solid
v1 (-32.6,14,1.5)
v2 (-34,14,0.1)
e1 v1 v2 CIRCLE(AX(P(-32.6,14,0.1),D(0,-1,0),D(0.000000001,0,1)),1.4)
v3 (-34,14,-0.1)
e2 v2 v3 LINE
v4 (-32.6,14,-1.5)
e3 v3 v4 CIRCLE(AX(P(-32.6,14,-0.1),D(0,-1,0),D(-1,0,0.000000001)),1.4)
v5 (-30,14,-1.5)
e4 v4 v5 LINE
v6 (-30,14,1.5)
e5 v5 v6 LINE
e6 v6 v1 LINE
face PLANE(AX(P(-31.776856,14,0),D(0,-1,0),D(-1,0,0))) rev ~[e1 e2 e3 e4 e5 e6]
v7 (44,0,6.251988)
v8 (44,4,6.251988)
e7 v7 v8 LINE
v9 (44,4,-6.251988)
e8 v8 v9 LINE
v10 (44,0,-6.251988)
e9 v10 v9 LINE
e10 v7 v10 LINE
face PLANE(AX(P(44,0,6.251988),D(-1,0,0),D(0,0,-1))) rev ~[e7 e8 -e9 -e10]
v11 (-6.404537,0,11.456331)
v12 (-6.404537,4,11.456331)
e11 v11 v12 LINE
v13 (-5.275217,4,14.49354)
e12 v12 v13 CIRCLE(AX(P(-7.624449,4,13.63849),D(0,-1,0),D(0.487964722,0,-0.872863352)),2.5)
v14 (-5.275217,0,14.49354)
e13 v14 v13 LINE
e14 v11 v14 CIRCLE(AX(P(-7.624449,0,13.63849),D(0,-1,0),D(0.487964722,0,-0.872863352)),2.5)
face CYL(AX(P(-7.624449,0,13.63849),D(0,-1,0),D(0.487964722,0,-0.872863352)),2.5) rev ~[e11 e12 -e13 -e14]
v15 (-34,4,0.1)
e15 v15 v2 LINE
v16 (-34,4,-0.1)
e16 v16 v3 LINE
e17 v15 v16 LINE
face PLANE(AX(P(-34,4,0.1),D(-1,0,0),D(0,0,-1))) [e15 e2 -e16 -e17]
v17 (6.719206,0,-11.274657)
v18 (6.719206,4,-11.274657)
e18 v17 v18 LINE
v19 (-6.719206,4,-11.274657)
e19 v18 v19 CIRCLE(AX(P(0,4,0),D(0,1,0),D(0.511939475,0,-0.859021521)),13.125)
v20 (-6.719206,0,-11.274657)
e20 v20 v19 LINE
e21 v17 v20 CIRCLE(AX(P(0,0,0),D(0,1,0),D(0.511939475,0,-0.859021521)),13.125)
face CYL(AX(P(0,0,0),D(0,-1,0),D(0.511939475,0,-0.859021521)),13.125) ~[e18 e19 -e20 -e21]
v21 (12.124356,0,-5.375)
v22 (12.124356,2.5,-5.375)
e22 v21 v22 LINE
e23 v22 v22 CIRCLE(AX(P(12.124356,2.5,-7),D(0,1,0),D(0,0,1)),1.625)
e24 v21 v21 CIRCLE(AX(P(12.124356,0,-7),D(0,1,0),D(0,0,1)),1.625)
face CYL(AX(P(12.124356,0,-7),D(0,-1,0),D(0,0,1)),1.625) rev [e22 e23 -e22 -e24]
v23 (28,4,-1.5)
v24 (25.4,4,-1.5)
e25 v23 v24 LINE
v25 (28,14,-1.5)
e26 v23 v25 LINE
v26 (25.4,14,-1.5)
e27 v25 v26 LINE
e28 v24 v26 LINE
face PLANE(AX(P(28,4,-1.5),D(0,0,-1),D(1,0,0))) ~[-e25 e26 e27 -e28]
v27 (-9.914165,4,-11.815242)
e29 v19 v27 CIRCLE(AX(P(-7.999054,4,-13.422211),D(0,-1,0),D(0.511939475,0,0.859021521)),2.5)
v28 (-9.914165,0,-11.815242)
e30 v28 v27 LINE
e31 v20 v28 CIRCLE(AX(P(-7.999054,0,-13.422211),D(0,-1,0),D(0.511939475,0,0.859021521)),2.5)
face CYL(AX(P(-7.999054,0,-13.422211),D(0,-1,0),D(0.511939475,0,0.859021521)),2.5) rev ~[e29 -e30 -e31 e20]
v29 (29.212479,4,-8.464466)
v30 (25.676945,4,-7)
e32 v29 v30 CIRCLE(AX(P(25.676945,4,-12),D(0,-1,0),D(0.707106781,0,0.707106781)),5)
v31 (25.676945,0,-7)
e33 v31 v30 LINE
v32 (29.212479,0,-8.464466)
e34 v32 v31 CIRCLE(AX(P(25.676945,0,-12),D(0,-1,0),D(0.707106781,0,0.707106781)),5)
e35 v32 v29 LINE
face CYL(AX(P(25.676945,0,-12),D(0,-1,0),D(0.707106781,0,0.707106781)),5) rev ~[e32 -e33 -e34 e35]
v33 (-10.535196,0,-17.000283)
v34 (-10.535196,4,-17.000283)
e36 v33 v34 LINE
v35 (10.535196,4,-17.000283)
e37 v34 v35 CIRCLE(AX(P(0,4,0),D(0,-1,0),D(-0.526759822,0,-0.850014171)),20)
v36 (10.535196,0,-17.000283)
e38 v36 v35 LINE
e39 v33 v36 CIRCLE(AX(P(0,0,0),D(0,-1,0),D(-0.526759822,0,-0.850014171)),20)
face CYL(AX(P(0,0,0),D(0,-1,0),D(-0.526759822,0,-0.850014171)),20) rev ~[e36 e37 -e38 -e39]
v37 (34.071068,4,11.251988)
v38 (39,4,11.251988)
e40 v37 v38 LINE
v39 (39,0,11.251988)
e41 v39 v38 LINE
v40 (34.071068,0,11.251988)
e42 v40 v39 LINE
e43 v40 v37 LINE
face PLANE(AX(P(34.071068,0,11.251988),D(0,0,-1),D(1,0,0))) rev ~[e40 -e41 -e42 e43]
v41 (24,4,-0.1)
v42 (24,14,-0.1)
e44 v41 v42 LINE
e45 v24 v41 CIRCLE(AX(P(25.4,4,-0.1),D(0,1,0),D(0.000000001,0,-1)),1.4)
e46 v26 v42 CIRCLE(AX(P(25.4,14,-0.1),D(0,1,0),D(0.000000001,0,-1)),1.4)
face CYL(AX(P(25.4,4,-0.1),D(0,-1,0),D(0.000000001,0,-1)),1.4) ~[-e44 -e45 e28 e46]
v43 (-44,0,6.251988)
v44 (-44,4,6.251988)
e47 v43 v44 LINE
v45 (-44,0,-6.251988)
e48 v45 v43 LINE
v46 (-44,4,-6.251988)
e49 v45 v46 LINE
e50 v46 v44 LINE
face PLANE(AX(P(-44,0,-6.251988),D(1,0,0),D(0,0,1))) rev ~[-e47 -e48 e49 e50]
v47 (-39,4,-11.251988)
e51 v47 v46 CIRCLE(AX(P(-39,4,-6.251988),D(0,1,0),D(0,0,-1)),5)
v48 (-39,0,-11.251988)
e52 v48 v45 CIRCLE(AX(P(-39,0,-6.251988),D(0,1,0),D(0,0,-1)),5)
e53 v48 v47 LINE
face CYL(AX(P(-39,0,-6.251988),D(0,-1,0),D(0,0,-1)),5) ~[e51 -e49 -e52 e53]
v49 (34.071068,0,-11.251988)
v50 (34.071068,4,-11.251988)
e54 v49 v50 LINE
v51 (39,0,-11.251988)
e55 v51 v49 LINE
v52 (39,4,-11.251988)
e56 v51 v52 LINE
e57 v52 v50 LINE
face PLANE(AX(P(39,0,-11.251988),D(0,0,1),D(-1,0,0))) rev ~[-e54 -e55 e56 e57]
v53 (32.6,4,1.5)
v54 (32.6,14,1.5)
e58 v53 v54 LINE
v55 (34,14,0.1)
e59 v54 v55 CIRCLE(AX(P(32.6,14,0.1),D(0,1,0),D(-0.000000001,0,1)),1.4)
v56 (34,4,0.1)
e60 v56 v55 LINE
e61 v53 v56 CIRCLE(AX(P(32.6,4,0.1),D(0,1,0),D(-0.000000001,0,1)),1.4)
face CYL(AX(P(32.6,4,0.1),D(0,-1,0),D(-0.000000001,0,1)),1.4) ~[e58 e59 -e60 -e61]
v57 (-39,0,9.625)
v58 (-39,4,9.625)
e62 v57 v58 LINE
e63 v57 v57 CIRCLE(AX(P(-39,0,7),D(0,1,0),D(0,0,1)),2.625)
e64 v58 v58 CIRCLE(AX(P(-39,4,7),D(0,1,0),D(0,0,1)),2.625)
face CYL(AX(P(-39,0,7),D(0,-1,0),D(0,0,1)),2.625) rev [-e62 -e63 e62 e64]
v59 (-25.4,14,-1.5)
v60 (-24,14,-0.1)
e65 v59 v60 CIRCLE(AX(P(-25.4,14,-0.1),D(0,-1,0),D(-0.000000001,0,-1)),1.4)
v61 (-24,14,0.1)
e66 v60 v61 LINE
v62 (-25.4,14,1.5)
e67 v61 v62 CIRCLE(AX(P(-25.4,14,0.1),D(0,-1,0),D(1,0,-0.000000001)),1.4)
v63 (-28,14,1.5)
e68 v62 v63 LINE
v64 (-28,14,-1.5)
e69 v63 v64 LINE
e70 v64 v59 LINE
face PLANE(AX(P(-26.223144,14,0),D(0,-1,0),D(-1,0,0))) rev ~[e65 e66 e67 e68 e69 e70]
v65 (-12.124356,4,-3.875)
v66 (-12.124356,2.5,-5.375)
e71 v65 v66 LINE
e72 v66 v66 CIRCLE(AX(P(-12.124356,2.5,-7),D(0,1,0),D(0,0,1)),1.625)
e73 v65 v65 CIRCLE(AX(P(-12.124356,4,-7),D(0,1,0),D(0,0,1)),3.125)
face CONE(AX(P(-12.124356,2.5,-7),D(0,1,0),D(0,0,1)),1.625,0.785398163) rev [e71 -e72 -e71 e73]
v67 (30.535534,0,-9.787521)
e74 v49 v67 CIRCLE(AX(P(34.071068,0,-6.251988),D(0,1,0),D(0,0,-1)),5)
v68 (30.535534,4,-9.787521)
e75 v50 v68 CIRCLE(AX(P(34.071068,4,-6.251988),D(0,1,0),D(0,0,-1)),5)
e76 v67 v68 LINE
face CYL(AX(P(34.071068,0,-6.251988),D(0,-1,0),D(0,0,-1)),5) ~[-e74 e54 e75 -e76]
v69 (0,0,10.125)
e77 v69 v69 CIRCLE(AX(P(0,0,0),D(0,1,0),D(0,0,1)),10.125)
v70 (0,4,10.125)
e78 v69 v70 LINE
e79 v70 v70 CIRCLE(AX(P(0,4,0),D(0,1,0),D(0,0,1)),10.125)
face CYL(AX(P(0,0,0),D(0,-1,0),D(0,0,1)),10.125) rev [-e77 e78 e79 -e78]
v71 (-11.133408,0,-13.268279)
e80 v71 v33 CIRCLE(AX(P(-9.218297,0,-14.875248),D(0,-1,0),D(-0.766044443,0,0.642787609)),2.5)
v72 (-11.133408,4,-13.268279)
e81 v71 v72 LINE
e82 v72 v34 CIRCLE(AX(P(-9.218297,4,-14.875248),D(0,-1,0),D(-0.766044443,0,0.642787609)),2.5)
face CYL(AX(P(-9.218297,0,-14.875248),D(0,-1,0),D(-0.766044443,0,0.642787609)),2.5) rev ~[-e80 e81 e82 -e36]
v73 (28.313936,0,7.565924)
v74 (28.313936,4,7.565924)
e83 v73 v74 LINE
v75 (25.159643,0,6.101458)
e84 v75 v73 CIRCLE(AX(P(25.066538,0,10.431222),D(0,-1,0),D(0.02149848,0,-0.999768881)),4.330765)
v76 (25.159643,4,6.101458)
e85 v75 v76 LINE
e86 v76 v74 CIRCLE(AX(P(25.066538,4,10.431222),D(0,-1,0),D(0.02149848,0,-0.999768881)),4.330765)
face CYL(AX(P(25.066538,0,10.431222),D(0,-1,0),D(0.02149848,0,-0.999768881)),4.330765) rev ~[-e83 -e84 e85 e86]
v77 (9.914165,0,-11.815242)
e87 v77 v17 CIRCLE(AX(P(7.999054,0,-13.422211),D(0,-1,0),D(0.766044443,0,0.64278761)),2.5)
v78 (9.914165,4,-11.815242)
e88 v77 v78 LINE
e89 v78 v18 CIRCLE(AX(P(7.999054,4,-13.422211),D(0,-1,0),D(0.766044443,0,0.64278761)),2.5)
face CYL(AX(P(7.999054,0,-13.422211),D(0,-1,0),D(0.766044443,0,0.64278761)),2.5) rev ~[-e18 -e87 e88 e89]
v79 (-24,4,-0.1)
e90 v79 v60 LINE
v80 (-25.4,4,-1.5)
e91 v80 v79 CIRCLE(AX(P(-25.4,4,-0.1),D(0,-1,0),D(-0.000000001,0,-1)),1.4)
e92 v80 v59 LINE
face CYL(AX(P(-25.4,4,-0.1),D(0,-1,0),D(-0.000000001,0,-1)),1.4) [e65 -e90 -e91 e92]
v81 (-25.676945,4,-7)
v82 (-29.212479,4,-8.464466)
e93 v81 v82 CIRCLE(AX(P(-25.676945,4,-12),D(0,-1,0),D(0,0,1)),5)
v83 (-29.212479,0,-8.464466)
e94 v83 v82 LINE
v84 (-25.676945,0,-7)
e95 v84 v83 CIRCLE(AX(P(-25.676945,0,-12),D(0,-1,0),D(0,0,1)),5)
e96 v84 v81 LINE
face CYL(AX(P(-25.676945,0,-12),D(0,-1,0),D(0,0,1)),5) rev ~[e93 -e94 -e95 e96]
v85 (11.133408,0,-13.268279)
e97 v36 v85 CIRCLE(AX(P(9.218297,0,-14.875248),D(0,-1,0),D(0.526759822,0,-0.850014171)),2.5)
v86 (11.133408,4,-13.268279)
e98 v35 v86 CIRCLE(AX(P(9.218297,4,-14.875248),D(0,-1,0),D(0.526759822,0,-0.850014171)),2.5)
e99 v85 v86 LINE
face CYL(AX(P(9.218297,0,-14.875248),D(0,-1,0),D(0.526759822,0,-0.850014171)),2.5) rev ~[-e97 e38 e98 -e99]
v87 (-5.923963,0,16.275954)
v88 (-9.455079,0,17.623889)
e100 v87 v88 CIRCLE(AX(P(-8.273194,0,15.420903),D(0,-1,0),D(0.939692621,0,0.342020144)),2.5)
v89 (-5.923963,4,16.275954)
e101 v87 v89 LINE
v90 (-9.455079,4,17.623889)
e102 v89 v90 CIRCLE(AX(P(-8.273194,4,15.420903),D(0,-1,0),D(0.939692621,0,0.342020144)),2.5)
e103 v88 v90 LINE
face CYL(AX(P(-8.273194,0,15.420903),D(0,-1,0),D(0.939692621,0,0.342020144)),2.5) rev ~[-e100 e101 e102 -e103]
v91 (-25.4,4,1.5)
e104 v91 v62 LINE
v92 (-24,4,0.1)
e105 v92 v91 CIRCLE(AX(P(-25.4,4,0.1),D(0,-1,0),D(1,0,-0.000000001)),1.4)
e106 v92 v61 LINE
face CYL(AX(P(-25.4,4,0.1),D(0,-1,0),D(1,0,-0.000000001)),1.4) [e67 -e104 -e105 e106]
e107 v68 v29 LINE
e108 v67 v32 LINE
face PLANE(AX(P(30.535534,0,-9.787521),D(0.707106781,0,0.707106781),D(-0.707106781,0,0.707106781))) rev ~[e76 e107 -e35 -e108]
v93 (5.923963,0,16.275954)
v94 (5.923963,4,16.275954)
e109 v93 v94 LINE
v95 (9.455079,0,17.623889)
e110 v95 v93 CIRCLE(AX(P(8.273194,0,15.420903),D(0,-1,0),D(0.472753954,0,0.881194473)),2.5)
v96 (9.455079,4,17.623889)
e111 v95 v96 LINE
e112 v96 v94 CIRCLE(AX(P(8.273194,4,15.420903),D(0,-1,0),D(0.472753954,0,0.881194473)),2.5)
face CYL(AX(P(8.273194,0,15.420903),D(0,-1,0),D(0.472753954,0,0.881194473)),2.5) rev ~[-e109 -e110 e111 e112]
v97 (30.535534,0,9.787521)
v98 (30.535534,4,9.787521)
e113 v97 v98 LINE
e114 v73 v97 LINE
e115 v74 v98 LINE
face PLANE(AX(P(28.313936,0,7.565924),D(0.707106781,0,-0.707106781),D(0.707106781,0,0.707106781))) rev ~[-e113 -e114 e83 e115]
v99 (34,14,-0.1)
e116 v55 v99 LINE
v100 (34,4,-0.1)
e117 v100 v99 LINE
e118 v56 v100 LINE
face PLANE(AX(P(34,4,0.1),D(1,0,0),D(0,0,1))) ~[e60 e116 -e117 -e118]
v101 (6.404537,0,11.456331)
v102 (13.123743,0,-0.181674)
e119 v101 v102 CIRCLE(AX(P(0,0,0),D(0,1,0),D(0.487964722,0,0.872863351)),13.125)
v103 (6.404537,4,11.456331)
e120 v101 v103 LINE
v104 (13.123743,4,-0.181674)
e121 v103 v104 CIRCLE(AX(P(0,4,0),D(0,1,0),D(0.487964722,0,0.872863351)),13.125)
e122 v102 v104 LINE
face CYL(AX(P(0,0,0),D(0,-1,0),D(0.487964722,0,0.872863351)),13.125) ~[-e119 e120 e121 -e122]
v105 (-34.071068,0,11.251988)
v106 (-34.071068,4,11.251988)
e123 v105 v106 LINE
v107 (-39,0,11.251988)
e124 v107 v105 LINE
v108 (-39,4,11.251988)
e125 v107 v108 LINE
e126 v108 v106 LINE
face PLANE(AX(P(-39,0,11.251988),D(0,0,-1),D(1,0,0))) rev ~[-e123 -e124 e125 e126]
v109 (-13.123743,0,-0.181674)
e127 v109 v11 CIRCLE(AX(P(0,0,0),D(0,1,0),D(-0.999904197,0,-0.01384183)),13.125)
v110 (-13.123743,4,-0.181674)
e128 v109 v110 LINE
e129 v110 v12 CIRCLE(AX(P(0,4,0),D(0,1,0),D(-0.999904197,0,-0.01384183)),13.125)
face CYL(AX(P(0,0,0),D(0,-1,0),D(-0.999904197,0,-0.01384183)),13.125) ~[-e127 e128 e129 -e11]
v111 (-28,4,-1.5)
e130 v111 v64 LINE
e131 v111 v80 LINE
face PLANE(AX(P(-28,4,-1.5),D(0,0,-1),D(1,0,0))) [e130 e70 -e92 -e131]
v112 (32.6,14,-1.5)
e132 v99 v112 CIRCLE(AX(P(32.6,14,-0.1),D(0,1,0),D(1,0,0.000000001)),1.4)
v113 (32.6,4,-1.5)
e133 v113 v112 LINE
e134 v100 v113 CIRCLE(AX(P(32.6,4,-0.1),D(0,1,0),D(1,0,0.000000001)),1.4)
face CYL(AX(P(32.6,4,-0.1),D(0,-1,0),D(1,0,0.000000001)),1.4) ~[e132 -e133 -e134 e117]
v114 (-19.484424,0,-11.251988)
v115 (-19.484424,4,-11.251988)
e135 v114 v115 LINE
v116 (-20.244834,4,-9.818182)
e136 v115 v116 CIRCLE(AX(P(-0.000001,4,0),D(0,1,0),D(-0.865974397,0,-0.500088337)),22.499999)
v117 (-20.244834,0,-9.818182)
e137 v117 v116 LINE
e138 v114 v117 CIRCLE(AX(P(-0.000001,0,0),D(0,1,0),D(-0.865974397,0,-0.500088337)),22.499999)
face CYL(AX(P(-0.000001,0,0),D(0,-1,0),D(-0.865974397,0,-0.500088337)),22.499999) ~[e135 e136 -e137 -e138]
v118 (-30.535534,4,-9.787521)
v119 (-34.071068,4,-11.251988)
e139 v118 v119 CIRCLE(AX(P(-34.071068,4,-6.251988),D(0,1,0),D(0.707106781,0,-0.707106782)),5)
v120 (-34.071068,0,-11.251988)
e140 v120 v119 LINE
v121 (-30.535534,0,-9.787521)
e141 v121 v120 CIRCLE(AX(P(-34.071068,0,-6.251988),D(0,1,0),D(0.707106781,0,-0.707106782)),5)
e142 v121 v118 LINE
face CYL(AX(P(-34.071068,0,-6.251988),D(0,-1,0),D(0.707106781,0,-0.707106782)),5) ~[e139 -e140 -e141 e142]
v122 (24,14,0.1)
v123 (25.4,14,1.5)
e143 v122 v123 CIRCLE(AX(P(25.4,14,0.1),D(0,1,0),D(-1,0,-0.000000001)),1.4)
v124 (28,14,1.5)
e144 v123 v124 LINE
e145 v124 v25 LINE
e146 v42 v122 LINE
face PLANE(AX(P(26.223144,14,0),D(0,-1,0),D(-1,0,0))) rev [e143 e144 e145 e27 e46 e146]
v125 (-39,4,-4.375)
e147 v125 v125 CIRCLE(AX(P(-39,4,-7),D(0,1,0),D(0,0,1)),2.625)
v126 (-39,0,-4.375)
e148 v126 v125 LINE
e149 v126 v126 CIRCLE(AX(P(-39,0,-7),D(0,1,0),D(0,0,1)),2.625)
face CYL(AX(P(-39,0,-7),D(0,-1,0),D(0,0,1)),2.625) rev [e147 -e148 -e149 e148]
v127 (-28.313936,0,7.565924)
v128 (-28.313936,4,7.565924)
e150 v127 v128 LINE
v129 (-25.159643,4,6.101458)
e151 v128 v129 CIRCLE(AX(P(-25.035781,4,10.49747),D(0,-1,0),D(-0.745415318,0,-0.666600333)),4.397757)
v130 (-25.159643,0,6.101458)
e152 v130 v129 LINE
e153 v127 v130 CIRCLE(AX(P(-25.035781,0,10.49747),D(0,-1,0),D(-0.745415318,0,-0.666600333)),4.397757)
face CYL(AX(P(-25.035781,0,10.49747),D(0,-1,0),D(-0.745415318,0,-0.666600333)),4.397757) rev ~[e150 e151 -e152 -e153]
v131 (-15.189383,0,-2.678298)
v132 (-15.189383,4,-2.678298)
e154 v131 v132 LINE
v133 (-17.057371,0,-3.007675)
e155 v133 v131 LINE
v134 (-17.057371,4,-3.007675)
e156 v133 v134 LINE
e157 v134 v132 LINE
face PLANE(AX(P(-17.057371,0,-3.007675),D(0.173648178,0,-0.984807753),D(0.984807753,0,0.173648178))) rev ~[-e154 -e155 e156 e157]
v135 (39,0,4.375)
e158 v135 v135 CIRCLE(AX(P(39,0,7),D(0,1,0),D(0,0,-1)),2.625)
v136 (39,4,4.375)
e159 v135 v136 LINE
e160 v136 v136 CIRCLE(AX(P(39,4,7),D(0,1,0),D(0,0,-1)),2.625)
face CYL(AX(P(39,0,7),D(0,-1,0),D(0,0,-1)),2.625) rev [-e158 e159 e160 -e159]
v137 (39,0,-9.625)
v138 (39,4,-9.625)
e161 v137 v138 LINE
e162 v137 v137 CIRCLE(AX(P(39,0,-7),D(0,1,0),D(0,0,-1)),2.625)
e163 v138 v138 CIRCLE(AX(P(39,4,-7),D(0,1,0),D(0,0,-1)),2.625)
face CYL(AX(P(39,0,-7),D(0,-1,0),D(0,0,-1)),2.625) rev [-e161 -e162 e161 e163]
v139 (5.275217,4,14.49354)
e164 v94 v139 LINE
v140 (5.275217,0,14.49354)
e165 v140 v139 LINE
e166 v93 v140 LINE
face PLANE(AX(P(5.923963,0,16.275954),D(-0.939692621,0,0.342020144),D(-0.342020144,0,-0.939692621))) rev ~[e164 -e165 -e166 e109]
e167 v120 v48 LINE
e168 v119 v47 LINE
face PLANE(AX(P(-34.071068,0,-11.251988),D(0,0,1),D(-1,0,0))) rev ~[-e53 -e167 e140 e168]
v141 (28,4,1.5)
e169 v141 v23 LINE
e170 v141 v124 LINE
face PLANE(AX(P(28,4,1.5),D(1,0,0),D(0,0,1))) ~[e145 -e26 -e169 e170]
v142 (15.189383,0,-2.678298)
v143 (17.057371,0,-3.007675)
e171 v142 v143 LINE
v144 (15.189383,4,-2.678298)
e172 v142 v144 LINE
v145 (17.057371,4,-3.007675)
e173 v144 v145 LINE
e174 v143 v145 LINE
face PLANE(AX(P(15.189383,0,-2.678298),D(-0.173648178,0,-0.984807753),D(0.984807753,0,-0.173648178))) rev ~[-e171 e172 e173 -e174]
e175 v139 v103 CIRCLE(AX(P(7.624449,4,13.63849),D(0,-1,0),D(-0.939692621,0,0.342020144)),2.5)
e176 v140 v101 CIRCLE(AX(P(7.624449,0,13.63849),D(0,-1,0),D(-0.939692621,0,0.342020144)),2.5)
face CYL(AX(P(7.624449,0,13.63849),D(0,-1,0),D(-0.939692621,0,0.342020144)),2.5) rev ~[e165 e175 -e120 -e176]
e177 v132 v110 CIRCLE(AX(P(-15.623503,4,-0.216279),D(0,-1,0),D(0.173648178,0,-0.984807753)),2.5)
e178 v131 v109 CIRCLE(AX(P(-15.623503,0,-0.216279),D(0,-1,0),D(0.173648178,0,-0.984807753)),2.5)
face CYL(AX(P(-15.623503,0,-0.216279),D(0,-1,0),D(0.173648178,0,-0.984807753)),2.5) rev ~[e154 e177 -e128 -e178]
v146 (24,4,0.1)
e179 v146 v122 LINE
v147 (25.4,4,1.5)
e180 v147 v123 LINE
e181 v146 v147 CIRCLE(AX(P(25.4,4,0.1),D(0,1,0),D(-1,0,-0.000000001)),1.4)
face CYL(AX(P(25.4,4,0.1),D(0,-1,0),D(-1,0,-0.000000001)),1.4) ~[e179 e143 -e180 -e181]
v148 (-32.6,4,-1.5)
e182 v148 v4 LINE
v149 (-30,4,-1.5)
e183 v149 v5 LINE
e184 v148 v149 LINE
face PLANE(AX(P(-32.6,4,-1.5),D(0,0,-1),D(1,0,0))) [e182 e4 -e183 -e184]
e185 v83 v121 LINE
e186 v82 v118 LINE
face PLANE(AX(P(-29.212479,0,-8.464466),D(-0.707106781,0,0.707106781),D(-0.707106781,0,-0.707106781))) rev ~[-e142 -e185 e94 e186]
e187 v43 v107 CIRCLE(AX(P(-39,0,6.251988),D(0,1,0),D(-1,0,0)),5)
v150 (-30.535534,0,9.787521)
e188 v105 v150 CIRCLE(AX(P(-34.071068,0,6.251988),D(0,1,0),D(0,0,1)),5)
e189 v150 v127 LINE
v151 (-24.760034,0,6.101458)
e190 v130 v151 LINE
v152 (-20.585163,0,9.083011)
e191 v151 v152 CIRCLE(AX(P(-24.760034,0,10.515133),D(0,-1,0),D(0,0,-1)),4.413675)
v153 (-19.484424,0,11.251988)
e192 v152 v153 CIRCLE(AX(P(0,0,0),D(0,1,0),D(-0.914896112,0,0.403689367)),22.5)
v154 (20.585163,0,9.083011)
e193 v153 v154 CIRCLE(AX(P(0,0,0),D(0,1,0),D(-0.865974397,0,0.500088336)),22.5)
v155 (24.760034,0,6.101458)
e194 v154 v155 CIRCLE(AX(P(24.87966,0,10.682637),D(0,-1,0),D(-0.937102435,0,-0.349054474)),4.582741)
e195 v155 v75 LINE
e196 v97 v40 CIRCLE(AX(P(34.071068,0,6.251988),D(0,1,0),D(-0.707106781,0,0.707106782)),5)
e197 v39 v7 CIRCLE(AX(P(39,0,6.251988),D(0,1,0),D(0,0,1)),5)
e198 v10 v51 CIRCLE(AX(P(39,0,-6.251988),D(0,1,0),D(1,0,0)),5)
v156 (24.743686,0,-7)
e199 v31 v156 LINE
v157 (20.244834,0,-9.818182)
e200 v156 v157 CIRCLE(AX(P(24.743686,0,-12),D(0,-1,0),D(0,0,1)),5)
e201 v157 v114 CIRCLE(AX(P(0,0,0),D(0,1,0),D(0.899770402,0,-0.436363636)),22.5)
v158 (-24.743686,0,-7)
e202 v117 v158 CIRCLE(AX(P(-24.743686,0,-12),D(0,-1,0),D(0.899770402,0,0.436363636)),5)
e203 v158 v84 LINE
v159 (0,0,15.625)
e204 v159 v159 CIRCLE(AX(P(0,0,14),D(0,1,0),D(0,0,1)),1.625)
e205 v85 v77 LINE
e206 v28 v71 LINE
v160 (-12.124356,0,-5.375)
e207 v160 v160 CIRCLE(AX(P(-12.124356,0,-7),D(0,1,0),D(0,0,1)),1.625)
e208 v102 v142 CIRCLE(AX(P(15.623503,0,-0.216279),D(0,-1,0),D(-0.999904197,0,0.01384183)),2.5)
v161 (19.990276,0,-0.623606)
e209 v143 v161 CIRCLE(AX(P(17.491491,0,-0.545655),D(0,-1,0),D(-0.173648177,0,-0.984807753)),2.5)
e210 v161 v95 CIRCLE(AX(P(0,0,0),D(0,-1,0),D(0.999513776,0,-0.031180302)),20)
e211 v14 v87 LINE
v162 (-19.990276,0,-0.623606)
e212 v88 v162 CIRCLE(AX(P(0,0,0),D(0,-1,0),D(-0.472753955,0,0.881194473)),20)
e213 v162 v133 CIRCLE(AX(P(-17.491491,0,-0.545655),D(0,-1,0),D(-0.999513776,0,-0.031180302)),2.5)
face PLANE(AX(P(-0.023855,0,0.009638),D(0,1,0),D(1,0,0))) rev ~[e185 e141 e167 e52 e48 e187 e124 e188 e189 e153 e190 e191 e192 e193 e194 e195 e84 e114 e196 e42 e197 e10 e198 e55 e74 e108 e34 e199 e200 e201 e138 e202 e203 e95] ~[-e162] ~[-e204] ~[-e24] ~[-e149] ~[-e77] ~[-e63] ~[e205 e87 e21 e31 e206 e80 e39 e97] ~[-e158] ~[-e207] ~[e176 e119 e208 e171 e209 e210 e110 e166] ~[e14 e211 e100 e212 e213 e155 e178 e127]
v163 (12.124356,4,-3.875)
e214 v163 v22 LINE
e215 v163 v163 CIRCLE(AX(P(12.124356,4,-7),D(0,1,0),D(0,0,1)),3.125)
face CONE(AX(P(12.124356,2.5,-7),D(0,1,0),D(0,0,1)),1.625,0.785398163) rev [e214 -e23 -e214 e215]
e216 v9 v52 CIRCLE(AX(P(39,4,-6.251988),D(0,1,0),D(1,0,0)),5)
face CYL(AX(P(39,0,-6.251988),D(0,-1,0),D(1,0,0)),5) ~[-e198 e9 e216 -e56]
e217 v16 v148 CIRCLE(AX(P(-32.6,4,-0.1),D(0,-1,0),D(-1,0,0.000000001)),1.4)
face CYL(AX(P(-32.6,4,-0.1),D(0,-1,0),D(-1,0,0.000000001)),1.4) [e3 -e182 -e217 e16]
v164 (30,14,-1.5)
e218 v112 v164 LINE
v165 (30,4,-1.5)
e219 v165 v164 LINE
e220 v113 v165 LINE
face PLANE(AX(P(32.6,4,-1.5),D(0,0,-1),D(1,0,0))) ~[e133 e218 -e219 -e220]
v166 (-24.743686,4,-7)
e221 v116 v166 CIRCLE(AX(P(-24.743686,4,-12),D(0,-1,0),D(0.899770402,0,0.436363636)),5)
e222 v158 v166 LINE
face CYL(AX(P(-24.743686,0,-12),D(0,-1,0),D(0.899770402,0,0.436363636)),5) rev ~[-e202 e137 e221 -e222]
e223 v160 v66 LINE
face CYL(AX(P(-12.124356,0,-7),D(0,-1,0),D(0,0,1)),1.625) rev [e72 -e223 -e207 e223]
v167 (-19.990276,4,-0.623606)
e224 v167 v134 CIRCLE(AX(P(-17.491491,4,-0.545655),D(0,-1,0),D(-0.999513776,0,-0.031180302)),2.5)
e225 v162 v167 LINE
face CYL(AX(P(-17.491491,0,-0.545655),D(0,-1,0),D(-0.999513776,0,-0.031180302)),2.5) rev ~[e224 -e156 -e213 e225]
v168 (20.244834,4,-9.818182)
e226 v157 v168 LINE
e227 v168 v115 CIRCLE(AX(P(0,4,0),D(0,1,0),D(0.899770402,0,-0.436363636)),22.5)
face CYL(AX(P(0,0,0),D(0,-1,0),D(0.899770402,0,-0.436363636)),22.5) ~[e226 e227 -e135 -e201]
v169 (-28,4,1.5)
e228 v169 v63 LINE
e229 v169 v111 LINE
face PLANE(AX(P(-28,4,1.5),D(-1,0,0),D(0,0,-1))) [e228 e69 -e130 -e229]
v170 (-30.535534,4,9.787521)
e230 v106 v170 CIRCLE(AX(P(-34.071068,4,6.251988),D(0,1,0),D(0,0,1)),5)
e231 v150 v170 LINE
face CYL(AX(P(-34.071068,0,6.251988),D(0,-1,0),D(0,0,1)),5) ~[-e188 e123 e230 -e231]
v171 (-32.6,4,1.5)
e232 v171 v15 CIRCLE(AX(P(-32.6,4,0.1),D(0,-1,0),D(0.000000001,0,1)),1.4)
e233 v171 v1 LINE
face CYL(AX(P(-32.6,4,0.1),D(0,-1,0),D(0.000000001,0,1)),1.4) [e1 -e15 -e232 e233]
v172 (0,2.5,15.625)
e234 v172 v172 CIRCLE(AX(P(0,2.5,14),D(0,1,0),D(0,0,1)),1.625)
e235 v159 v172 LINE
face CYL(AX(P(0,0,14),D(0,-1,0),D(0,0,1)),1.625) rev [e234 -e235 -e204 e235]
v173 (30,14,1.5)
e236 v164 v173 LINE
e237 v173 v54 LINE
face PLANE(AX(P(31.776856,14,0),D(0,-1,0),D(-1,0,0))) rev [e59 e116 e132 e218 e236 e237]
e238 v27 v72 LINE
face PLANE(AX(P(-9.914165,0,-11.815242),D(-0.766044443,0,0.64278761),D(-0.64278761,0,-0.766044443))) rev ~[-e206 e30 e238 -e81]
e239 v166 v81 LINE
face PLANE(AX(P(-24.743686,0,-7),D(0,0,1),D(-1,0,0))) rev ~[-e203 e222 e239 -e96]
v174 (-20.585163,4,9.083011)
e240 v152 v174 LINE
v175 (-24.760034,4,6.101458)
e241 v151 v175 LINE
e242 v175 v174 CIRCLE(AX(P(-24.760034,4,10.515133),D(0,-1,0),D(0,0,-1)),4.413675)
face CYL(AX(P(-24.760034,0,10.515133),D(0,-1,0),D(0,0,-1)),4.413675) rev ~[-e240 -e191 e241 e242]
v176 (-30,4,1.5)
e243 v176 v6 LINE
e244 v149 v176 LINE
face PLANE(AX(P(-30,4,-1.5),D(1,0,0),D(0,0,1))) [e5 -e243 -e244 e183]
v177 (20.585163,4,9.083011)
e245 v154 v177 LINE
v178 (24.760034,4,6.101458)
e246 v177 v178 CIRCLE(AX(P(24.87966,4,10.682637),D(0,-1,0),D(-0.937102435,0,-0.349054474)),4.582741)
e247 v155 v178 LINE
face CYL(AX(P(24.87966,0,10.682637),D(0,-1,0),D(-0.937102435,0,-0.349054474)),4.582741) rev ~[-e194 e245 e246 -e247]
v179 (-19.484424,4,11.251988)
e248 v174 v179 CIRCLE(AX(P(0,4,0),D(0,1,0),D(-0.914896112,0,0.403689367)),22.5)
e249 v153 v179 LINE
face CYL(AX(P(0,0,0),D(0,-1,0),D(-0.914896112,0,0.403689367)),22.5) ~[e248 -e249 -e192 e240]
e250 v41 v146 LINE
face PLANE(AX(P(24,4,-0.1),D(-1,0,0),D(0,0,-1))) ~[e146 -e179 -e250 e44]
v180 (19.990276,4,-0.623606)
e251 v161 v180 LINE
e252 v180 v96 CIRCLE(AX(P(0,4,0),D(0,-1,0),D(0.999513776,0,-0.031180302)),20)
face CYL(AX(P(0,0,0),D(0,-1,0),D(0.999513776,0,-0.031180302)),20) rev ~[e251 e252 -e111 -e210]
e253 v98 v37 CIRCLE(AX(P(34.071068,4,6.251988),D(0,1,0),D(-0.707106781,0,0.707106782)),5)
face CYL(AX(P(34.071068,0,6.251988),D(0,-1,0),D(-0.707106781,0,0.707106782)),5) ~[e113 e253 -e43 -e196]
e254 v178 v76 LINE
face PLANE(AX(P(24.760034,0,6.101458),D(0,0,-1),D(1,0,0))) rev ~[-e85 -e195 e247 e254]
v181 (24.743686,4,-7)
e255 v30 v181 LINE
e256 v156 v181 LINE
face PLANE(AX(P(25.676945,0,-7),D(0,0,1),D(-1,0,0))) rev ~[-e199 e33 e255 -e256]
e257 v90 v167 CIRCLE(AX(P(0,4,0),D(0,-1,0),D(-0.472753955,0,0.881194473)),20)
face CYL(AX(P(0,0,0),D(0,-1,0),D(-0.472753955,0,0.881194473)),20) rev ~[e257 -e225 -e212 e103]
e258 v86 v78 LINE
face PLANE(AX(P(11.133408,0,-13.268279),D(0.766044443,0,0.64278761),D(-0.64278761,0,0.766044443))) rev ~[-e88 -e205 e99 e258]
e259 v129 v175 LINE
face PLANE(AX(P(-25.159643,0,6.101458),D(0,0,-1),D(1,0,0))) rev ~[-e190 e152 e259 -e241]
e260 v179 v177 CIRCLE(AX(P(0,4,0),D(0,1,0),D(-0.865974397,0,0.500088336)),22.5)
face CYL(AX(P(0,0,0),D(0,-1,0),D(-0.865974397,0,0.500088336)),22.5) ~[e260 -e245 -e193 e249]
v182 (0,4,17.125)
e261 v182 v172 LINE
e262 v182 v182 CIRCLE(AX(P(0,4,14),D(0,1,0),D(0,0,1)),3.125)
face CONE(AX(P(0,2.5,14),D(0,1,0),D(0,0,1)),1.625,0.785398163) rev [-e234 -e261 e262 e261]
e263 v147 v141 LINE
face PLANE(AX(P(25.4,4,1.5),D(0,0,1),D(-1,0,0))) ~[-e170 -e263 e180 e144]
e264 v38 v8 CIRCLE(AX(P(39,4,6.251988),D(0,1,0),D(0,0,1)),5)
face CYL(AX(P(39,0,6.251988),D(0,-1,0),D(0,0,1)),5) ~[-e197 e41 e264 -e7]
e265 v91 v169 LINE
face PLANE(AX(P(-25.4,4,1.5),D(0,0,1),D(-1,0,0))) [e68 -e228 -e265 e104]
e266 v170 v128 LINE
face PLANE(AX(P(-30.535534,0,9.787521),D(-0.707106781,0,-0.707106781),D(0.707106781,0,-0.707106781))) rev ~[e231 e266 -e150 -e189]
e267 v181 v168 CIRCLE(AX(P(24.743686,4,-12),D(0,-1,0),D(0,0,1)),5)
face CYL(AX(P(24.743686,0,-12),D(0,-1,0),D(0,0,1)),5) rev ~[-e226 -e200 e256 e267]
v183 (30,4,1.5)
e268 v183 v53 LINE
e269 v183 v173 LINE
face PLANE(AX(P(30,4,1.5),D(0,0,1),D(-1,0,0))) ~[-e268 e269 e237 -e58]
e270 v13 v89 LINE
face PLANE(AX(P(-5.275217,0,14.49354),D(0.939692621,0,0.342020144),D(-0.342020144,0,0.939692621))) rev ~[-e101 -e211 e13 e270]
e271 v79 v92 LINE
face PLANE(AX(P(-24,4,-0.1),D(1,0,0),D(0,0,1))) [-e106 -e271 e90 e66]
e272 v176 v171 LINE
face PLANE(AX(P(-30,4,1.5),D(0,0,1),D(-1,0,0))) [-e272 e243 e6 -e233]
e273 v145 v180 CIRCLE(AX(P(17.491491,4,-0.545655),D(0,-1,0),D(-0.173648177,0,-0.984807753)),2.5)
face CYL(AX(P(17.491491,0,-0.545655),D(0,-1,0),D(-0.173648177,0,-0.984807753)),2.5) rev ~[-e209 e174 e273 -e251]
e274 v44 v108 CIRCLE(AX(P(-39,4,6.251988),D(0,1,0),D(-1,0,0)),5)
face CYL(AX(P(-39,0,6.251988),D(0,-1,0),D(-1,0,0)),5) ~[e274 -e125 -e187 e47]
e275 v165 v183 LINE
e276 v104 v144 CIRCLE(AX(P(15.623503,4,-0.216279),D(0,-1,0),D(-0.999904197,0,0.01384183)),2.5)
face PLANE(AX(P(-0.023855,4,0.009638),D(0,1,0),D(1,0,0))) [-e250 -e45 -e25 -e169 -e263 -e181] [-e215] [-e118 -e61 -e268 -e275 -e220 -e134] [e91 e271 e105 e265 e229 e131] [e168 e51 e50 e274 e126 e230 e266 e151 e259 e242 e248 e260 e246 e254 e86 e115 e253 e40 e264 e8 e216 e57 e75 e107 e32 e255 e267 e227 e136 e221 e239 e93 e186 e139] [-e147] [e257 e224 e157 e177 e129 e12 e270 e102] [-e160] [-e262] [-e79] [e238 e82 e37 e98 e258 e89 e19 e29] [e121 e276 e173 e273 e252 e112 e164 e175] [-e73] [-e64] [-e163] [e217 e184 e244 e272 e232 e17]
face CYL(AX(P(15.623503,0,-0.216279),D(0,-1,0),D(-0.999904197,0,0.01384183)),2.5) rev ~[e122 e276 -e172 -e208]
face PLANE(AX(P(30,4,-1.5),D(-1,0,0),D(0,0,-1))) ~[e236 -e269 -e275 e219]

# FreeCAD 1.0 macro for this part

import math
import FreeCAD as App
import Part
import Sketcher
from FreeCAD import Vector
Q = App.Units.Quantity


def edges_at(feature, points):
    """Names of the edges that pass closest to the given points."""
    edges = feature.Shape.Edges
    near = lambda p: min(range(len(edges)), key=lambda i: edges[i].distToShape(Part.Vertex(*p))[0])
    return sorted({f"Edge{near(p) + 1}" for p in points})

doc = App.newDocument("Part")
params = doc.addObject("Spreadsheet::Sheet", "Params")
for row, (alias, value) in enumerate([
    ("sketch1_radius", "5 mm"),
    ("sketch1_radius2", "20 mm"),
    ("sketch1_radius3", "22.5 mm"),
    ("sketch1_radius4", "2.5 mm"),
    ("sketch1_diameter", "5.25 mm"),
    ("pad1_length", "4 mm"),
    ("sketch2_radius", "1.4 mm"),
    ("sketch2_height", "3 mm"),
    ("sketch2_width", "2.6 mm"),
    ("pad2_length", "10 mm"),
    ("chamfer_size", "1.5 mm"),
], start=1):
    params.set(f"A{row}", alias)
    params.set(f"B{row}", "=" + value)
    params.setAlias(f"B{row}", alias)

body = doc.addObject("PartDesign::Body", "Body")

sketch1 = body.newObject("Sketcher::SketchObject", "Sketch")
sketch1.AttachmentSupport = (doc.getObject("XZ_Plane"), [""])
sketch1.MapMode = "FlatFace"
sketch1.addGeometry([
    Part.LineSegment(Vector(-34.07, -11.25, 0), Vector(-39, -11.25, 0)),
    Part.ArcOfCircle(Part.Circle(Vector(-39, -6.25, 0), Vector(0, 0, 1), 5), math.radians(180), math.radians(270)),
    Part.LineSegment(Vector(-44, -6.25, 0), Vector(-44, 6.25, 0)),
    Part.ArcOfCircle(Part.Circle(Vector(-39, 6.25, 0), Vector(0, 0, 1), 5), math.radians(90), math.radians(180)),
    Part.LineSegment(Vector(-39, 11.25, 0), Vector(-34.07, 11.25, 0)),
    Part.ArcOfCircle(Part.Circle(Vector(-34.07, 6.25, 0), Vector(0, 0, 1), 5), math.radians(45), math.radians(90)),
    Part.LineSegment(Vector(-30.54, 9.79, 0), Vector(-28.31, 7.57, 0)),
    Part.ArcOfCircle(Part.Circle(Vector(-25.04, 10.5, 0), Vector(0, 0, 1), 4.4), math.radians(-138), math.radians(-92)),
    Part.LineSegment(Vector(-25.16, 6.1, 0), Vector(-24.76, 6.1, 0)),
    Part.ArcOfCircle(Part.Circle(Vector(-24.76, 10.52, 0), Vector(0, 0, 1), 4.41), math.radians(-90), math.radians(-19)),
    Part.ArcOfCircle(Part.Circle(Vector(0, 0, 0), Vector(0, 0, 1), 22.5), math.radians(149.99), math.radians(156.19)),
    Part.ArcOfCircle(Part.Circle(Vector(0, 0, 0), Vector(0, 0, 1), 22.5), math.radians(24), math.radians(150)),
    Part.ArcOfCircle(Part.Circle(Vector(24.88, 10.68, 0), Vector(0, 0, 1), 4.58), math.radians(-160), math.radians(-91)),
    Part.LineSegment(Vector(24.76, 6.1, 0), Vector(25.16, 6.1, 0)),
    Part.ArcOfCircle(Part.Circle(Vector(25.07, 10.43, 0), Vector(0, 0, 1), 4.33), math.radians(-89), math.radians(-41)),
    Part.LineSegment(Vector(28.31, 7.57, 0), Vector(30.54, 9.79, 0)),
    Part.ArcOfCircle(Part.Circle(Vector(34.07, 6.25, 0), Vector(0, 0, 1), 5), math.radians(90), math.radians(135)),
    Part.LineSegment(Vector(34.07, 11.25, 0), Vector(39, 11.25, 0)),
    Part.ArcOfCircle(Part.Circle(Vector(39, 6.25, 0), Vector(0, 0, 1), 5), math.radians(0), math.radians(90)),
    Part.LineSegment(Vector(44, 6.25, 0), Vector(44, -6.25, 0)),
    Part.ArcOfCircle(Part.Circle(Vector(39, -6.25, 0), Vector(0, 0, 1), 5), math.radians(-90), math.radians(0)),
    Part.LineSegment(Vector(39, -11.25, 0), Vector(34.07, -11.25, 0)),
    Part.ArcOfCircle(Part.Circle(Vector(34.07, -6.25, 0), Vector(0, 0, 1), 5), math.radians(-135), math.radians(-90)),
    Part.LineSegment(Vector(30.54, -9.79, 0), Vector(29.21, -8.46, 0)),
    Part.ArcOfCircle(Part.Circle(Vector(25.68, -12, 0), Vector(0, 0, 1), 5), math.radians(45), math.radians(90)),
    Part.LineSegment(Vector(25.68, -7, 0), Vector(24.74, -7, 0)),
    Part.ArcOfCircle(Part.Circle(Vector(24.74, -12, 0), Vector(0, 0, 1), 5), math.radians(90), math.radians(154)),
    Part.ArcOfCircle(Part.Circle(Vector(0, 0, 0), Vector(0, 0, 1), 22.5), math.radians(-150), math.radians(-26)),
    Part.ArcOfCircle(Part.Circle(Vector(0, 0, 0), Vector(0, 0, 1), 22.5), math.radians(-154.13), math.radians(-149.99)),
    Part.ArcOfCircle(Part.Circle(Vector(-24.74, -12, 0), Vector(0, 0, 1), 5), math.radians(26), math.radians(90)),
    Part.LineSegment(Vector(-24.74, -7, 0), Vector(-25.68, -7, 0)),
    Part.ArcOfCircle(Part.Circle(Vector(-25.68, -12, 0), Vector(0, 0, 1), 5), math.radians(90), math.radians(135)),
    Part.LineSegment(Vector(-29.21, -8.46, 0), Vector(-30.54, -9.79, 0)),
    Part.ArcOfCircle(Part.Circle(Vector(-34.07, -6.25, 0), Vector(0, 0, 1), 5), math.radians(-90), math.radians(-45)),
    Part.Circle(Vector(-39, 7, 0), Vector(0, 0, 1), 2.62),
    Part.ArcOfCircle(Part.Circle(Vector(-7.62, 13.64, 0), Vector(0, 0, 1), 2.5), math.radians(-61), math.radians(20)),
    Part.LineSegment(Vector(-5.28, 14.49, 0), Vector(-5.92, 16.28, 0)),
    Part.ArcOfCircle(Part.Circle(Vector(-8.27, 15.42, 0), Vector(0, 0, 1), 2.5), math.radians(20), math.radians(118)),
    Part.ArcOfCircle(Part.Circle(Vector(0, 0, 0), Vector(0, 0, 1), 20), math.radians(118), math.radians(182)),
    Part.ArcOfCircle(Part.Circle(Vector(-17.49, -0.55, 0), Vector(0, 0, 1), 2.5), math.radians(-178), math.radians(-80)),
    Part.LineSegment(Vector(-17.06, -3.01, 0), Vector(-15.19, -2.68, 0)),
    Part.ArcOfCircle(Part.Circle(Vector(-15.62, -0.22, 0), Vector(0, 0, 1), 2.5), math.radians(-80), math.radians(1)),
    Part.ArcOfCircle(Part.Circle(Vector(0, 0, 0), Vector(0, 0, 1), 13.12), math.radians(119), math.radians(181)),
    Part.Circle(Vector(0, 14, 0), Vector(0, 0, 1), 1.62),
    Part.ArcOfCircle(Part.Circle(Vector(15.62, -0.22, 0), Vector(0, 0, 1), 2.5), math.radians(179), math.radians(260)),
    Part.LineSegment(Vector(15.19, -2.68, 0), Vector(17.06, -3.01, 0)),
    Part.ArcOfCircle(Part.Circle(Vector(17.49, -0.55, 0), Vector(0, 0, 1), 2.5), math.radians(-100), math.radians(-2)),
    Part.ArcOfCircle(Part.Circle(Vector(0, 0, 0), Vector(0, 0, 1), 20), math.radians(-2), math.radians(62)),
    Part.ArcOfCircle(Part.Circle(Vector(8.27, 15.42, 0), Vector(0, 0, 1), 2.5), math.radians(62), math.radians(160)),
    Part.LineSegment(Vector(5.92, 16.28, 0), Vector(5.28, 14.49, 0)),
    Part.ArcOfCircle(Part.Circle(Vector(7.62, 13.64, 0), Vector(0, 0, 1), 2.5), math.radians(160), math.radians(241)),
    Part.ArcOfCircle(Part.Circle(Vector(0, 0, 0), Vector(0, 0, 1), 13.12), math.radians(-1), math.radians(61)),
    Part.Circle(Vector(0, 0, 0), Vector(0, 0, 1), 10.12),
    Part.Circle(Vector(39, 7, 0), Vector(0, 0, 1), 2.62),
    Part.Circle(Vector(-39, -7, 0), Vector(0, 0, 1), 2.62),
    Part.Circle(Vector(-12.12, -7, 0), Vector(0, 0, 1), 1.62),
    Part.Circle(Vector(12.12, -7, 0), Vector(0, 0, 1), 1.62),
    Part.Circle(Vector(39, -7, 0), Vector(0, 0, 1), 2.62),
    Part.ArcOfCircle(Part.Circle(Vector(-8, -13.42, 0), Vector(0, 0, 1), 2.5), math.radians(59), math.radians(140)),
    Part.LineSegment(Vector(-9.91, -11.82, 0), Vector(-11.13, -13.27, 0)),
    Part.ArcOfCircle(Part.Circle(Vector(-9.22, -14.88, 0), Vector(0, 0, 1), 2.5), math.radians(140), math.radians(238)),
    Part.ArcOfCircle(Part.Circle(Vector(0, 0, 0), Vector(0, 0, 1), 20), math.radians(-122), math.radians(-58)),
    Part.ArcOfCircle(Part.Circle(Vector(9.22, -14.88, 0), Vector(0, 0, 1), 2.5), math.radians(-58), math.radians(40)),
    Part.LineSegment(Vector(11.13, -13.27, 0), Vector(9.91, -11.82, 0)),
    Part.ArcOfCircle(Part.Circle(Vector(8, -13.42, 0), Vector(0, 0, 1), 2.5), math.radians(40), math.radians(121)),
    Part.ArcOfCircle(Part.Circle(Vector(0, 0, 0), Vector(0, 0, 1), 13.12), math.radians(-121), math.radians(-59)),
], False)
sketch1.addConstraint([
    Sketcher.Constraint("Tangent", 0, 2, 1, 2),
    Sketcher.Constraint("Tangent", 1, 1, 2, 1),
    Sketcher.Constraint("Tangent", 2, 2, 3, 2),
    Sketcher.Constraint("Tangent", 3, 1, 4, 1),
    Sketcher.Constraint("Tangent", 4, 2, 5, 2),
    Sketcher.Constraint("Tangent", 5, 1, 6, 1),
    Sketcher.Constraint("Coincident", 6, 2, 7, 1),
    Sketcher.Constraint("Coincident", 7, 2, 8, 1),
    Sketcher.Constraint("Tangent", 8, 2, 9, 1),
    Sketcher.Constraint("Coincident", 9, 2, 10, 2),
    Sketcher.Constraint("Tangent", 10, 1, 11, 2),
    Sketcher.Constraint("Coincident", 11, 1, 12, 1),
    Sketcher.Constraint("Coincident", 12, 2, 13, 1),
    Sketcher.Constraint("Coincident", 13, 2, 14, 1),
    Sketcher.Constraint("Coincident", 14, 2, 15, 1),
    Sketcher.Constraint("Tangent", 15, 2, 16, 2),
    Sketcher.Constraint("Tangent", 16, 1, 17, 1),
    Sketcher.Constraint("Tangent", 17, 2, 18, 2),
    Sketcher.Constraint("Tangent", 18, 1, 19, 1),
    Sketcher.Constraint("Tangent", 19, 2, 20, 2),
    Sketcher.Constraint("Tangent", 20, 1, 21, 1),
    Sketcher.Constraint("Tangent", 21, 2, 22, 2),
    Sketcher.Constraint("Tangent", 22, 1, 23, 1),
    Sketcher.Constraint("Tangent", 23, 2, 24, 1),
    Sketcher.Constraint("Tangent", 24, 2, 25, 1),
    Sketcher.Constraint("Tangent", 25, 2, 26, 1),
    Sketcher.Constraint("Tangent", 26, 2, 27, 2),
    Sketcher.Constraint("Tangent", 27, 1, 28, 2),
    Sketcher.Constraint("Tangent", 28, 1, 29, 1),
    Sketcher.Constraint("Tangent", 29, 2, 30, 1),
    Sketcher.Constraint("Tangent", 30, 2, 31, 1),
    Sketcher.Constraint("Tangent", 31, 2, 32, 1),
    Sketcher.Constraint("Tangent", 32, 2, 33, 2),
    Sketcher.Constraint("Tangent", 33, 1, 0, 1),
    Sketcher.Constraint("Tangent", 35, 2, 36, 1),
    Sketcher.Constraint("Tangent", 36, 2, 37, 1),
    Sketcher.Constraint("Tangent", 37, 2, 38, 1),
    Sketcher.Constraint("Tangent", 38, 2, 39, 1),
    Sketcher.Constraint("Tangent", 39, 2, 40, 1),
    Sketcher.Constraint("Tangent", 40, 2, 41, 1),
    Sketcher.Constraint("Tangent", 41, 2, 42, 2),
    Sketcher.Constraint("Tangent", 42, 1, 35, 1),
    Sketcher.Constraint("Tangent", 44, 2, 45, 1),
    Sketcher.Constraint("Tangent", 45, 2, 46, 1),
    Sketcher.Constraint("Tangent", 46, 2, 47, 1),
    Sketcher.Constraint("Tangent", 47, 2, 48, 1),
    Sketcher.Constraint("Tangent", 48, 2, 49, 1),
    Sketcher.Constraint("Tangent", 49, 2, 50, 1),
    Sketcher.Constraint("Tangent", 50, 2, 51, 2),
    Sketcher.Constraint("Tangent", 51, 1, 44, 1),
    Sketcher.Constraint("Tangent", 58, 2, 59, 1),
    Sketcher.Constraint("Tangent", 59, 2, 60, 1),
    Sketcher.Constraint("Tangent", 60, 2, 61, 1),
    Sketcher.Constraint("Tangent", 61, 2, 62, 1),
    Sketcher.Constraint("Tangent", 62, 2, 63, 1),
    Sketcher.Constraint("Tangent", 63, 2, 64, 1),
    Sketcher.Constraint("Tangent", 64, 2, 65, 2),
    Sketcher.Constraint("Tangent", 65, 1, 58, 1),
    Sketcher.Constraint("Horizontal", 0),
    Sketcher.Constraint("Vertical", 2),
    Sketcher.Constraint("Horizontal", 4),
    Sketcher.Constraint("Horizontal", 8),
    Sketcher.Constraint("Horizontal", 13),
    Sketcher.Constraint("Horizontal", 17),
    Sketcher.Constraint("Vertical", 19),
    Sketcher.Constraint("Horizontal", 21),
    Sketcher.Constraint("Horizontal", 25),
    Sketcher.Constraint("Horizontal", 30),
    Sketcher.Constraint("Coincident", 10, 3, -1, 1),
    Sketcher.Constraint("Coincident", 27, 3, -1, 1),
    Sketcher.Constraint("Coincident", 38, 3, -1, 1),
    Sketcher.Constraint("Coincident", 42, 3, -1, 1),
    Sketcher.Constraint("Coincident", 47, 3, -1, 1),
    Sketcher.Constraint("Coincident", 51, 3, -1, 1),
    Sketcher.Constraint("Coincident", 52, 3, -1, 1),
    Sketcher.Constraint("Coincident", 61, 3, -1, 1),
    Sketcher.Constraint("Coincident", 65, 3, -1, 1),
    Sketcher.Constraint("Equal", 1, 3),
    Sketcher.Constraint("Equal", 3, 5),
    Sketcher.Constraint("Equal", 10, 11),
    Sketcher.Constraint("Equal", 5, 16),
    Sketcher.Constraint("Equal", 16, 18),
    Sketcher.Constraint("Equal", 18, 20),
    Sketcher.Constraint("Equal", 20, 22),
    Sketcher.Constraint("Equal", 22, 24),
    Sketcher.Constraint("Equal", 24, 26),
    Sketcher.Constraint("Equal", 11, 27),
    Sketcher.Constraint("Equal", 27, 28),
    Sketcher.Constraint("Equal", 26, 29),
    Sketcher.Constraint("Equal", 29, 31),
    Sketcher.Constraint("Equal", 31, 33),
    Sketcher.Constraint("Equal", 35, 37),
    Sketcher.Constraint("Equal", 37, 39),
    Sketcher.Constraint("Equal", 39, 41),
    Sketcher.Constraint("Equal", 41, 44),
    Sketcher.Constraint("Equal", 44, 46),
    Sketcher.Constraint("Equal", 38, 47),
    Sketcher.Constraint("Equal", 46, 48),
    Sketcher.Constraint("Equal", 48, 50),
    Sketcher.Constraint("Equal", 42, 51),
    Sketcher.Constraint("Equal", 34, 53),
    Sketcher.Constraint("Equal", 53, 54),
    Sketcher.Constraint("Equal", 43, 55),
    Sketcher.Constraint("Equal", 55, 56),
    Sketcher.Constraint("Equal", 54, 57),
    Sketcher.Constraint("Equal", 50, 58),
    Sketcher.Constraint("Equal", 58, 60),
    Sketcher.Constraint("Equal", 47, 61),
    Sketcher.Constraint("Equal", 60, 62),
    Sketcher.Constraint("Equal", 62, 64),
    Sketcher.Constraint("Equal", 51, 65),
    Sketcher.Constraint("Symmetric", 1, 3, 18, 3, -1, 1),
    Sketcher.Constraint("Symmetric", 5, 3, 22, 3, -1, 1),
    Sketcher.Constraint("Symmetric", 53, 3, 54, 3, -1, 1),
    Sketcher.Constraint("Symmetric", 34, 3, 57, 3, -1, 1),
    Sketcher.Constraint("Symmetric", 15, 2, 32, 2, -1, 1),
    Sketcher.Constraint("Symmetric", 5, 3, 16, 3, -2),
    Sketcher.Constraint("Symmetric", 24, 3, 31, 3, -2),
    Sketcher.Constraint("Symmetric", 34, 3, 53, 3, -2),
    Sketcher.Constraint("Symmetric", 55, 3, 56, 3, -2),
    Sketcher.Constraint("Symmetric", 8, 2, 12, 2, -2),
    Sketcher.Constraint("Symmetric", 6, 2, 14, 2, -2),
    Sketcher.Constraint("Symmetric", 40, 2, 44, 2, -2),
    Sketcher.Constraint("Symmetric", 36, 2, 48, 2, -2),
    Sketcher.Constraint("Symmetric", 59, 2, 62, 2, -2),
    Sketcher.Constraint("PointOnObject", 43, 3, -2),
    Sketcher.Constraint("Perpendicular", 6, 15),
    Sketcher.Constraint("Horizontal", 54, 3, 55, 3),
    Sketcher.Constraint("Horizontal", 4, 2, 10, 1),
    Sketcher.Constraint("Horizontal", 9, 2, 11, 1),
    Sketcher.Constraint("Horizontal", 57, 3, 24, 2),
    Sketcher.Constraint("Horizontal", 21, 2, 27, 1),
    Sketcher.Constraint("Vertical", 3, 3, 34, 3),
    Sketcher.Constraint("Equal", 8, 13),
    Sketcher.Constraint("Equal", 36, 40),
    Sketcher.Constraint("Equal", 49, 59),
    Sketcher.Constraint("Radius", 1, 5.0),
    Sketcher.Constraint("Radius", 38, 20.0),
    Sketcher.Constraint("Radius", 10, 22.5),
    Sketcher.Constraint("Radius", 35, 2.5),
    Sketcher.Constraint("Diameter", 34, 5.25),
    Sketcher.Constraint("Diameter", 43, 3.25),
    Sketcher.Constraint("Diameter", 52, 20.25),
    Sketcher.Constraint("Angle", 36, Q("110 deg")),
    Sketcher.Constraint("Angle", 40, Q("10 deg")),
    Sketcher.Constraint("Angle", 59, Q("-130 deg")),
    Sketcher.Constraint("DistanceX", 1, 3, -1, 1, 39.0),
    Sketcher.Constraint("DistanceY", 24, 3, -1, 1, 12.0),
    Sketcher.Constraint("DistanceY", -1, 1, 43, 3, 14.0),
    Sketcher.Constraint("Radius", 42, 13.125),
    Sketcher.Constraint("Radius", 12, 4.582741),
    Sketcher.Constraint("Radius", 7, 4.397757),
    Sketcher.Constraint("Radius", 9, 4.413675),
    Sketcher.Constraint("Radius", 14, 4.330765),
    Sketcher.Constraint("DistanceX", 8, 1, 8, 2, 0.399609),
    Sketcher.Constraint("DistanceX", 25, 2, 25, 1, 0.933259),
    Sketcher.Constraint("DistanceX", 0, 2, 0, 1, 4.928932),
    Sketcher.Constraint("DistanceX", 7, 3, -1, 1, 25.035781),
    Sketcher.Constraint("DistanceY", -1, 1, 7, 3, 10.49747),
    Sketcher.Constraint("DistanceX", -1, 1, 12, 3, 24.87966),
    Sketcher.Constraint("DistanceX", 35, 3, -1, 1, 7.624449),
    Sketcher.Constraint("DistanceX", 55, 3, -1, 1, 12.124356),
])
sketch1.setExpression("Constraints[136]", "Params.sketch1_radius")
sketch1.setExpression("Constraints[137]", "Params.sketch1_radius2")
sketch1.setExpression("Constraints[138]", "Params.sketch1_radius3")
sketch1.setExpression("Constraints[139]", "Params.sketch1_radius4")
sketch1.setExpression("Constraints[140]", "Params.sketch1_diameter")
pad1 = body.newObject("PartDesign::Pad", "Pad")
pad1.Profile = sketch1
pad1.setExpression("Length", "Params.pad1_length")
pad1.Reversed = True

sketch2 = body.newObject("Sketcher::SketchObject", "Sketch001")
sketch2.AttachmentSupport = (doc.getObject("XZ_Plane"), [""])
sketch2.MapMode = "FlatFace"
sketch2.AttachmentOffset = App.Placement(Vector(0, 0, -4), App.Rotation())
sketch2.addGeometry([
    Part.LineSegment(Vector(-30, -1.5, 0), Vector(-32.6, -1.5, 0)),
    Part.ArcOfCircle(Part.Circle(Vector(-32.6, -0.1, 0), Vector(0, 0, 1), 1.4), math.radians(180), math.radians(270)),
    Part.LineSegment(Vector(-34, -0.1, 0), Vector(-34, 0.1, 0)),
    Part.ArcOfCircle(Part.Circle(Vector(-32.6, 0.1, 0), Vector(0, 0, 1), 1.4), math.radians(90), math.radians(180)),
    Part.LineSegment(Vector(-32.6, 1.5, 0), Vector(-30, 1.5, 0)),
    Part.LineSegment(Vector(-30, 1.5, 0), Vector(-30, -1.5, 0)),
    Part.LineSegment(Vector(-25.4, -1.5, 0), Vector(-28, -1.5, 0)),
    Part.LineSegment(Vector(-28, -1.5, 0), Vector(-28, 1.5, 0)),
    Part.LineSegment(Vector(-28, 1.5, 0), Vector(-25.4, 1.5, 0)),
    Part.ArcOfCircle(Part.Circle(Vector(-25.4, 0.1, 0), Vector(0, 0, 1), 1.4), math.radians(0), math.radians(90)),
    Part.LineSegment(Vector(-24, 0.1, 0), Vector(-24, -0.1, 0)),
    Part.ArcOfCircle(Part.Circle(Vector(-25.4, -0.1, 0), Vector(0, 0, 1), 1.4), math.radians(-90), math.radians(0)),
], False)
sketch2.addConstraint([
    Sketcher.Constraint("Tangent", 0, 2, 1, 2),
    Sketcher.Constraint("Tangent", 1, 1, 2, 1),
    Sketcher.Constraint("Tangent", 2, 2, 3, 2),
    Sketcher.Constraint("Tangent", 3, 1, 4, 1),
    Sketcher.Constraint("Coincident", 4, 2, 5, 1),
    Sketcher.Constraint("Coincident", 5, 2, 0, 1),
    Sketcher.Constraint("Coincident", 6, 2, 7, 1),
    Sketcher.Constraint("Coincident", 7, 2, 8, 1),
    Sketcher.Constraint("Tangent", 8, 2, 9, 2),
    Sketcher.Constraint("Tangent", 9, 1, 10, 1),
    Sketcher.Constraint("Tangent", 10, 2, 11, 2),
    Sketcher.Constraint("Tangent", 11, 1, 6, 1),
    Sketcher.Constraint("Horizontal", 0),
    Sketcher.Constraint("Vertical", 2),
    Sketcher.Constraint("Horizontal", 4),
    Sketcher.Constraint("Vertical", 5),
    Sketcher.Constraint("Horizontal", 6),
    Sketcher.Constraint("Vertical", 7),
    Sketcher.Constraint("Horizontal", 8),
    Sketcher.Constraint("Vertical", 10),
    Sketcher.Constraint("Equal", 1, 3),
    Sketcher.Constraint("Equal", 3, 9),
    Sketcher.Constraint("Equal", 9, 11),
    Sketcher.Constraint("Horizontal", 3, 3, 9, 3),
    Sketcher.Constraint("Horizontal", 1, 3, 11, 3),
    Sketcher.Constraint("Equal", 4, 6),
    Sketcher.Constraint("Radius", 1, 1.4),
    Sketcher.Constraint("DistanceY", 5, 2, 5, 1, 3.0),
    Sketcher.Constraint("DistanceX", 0, 2, 0, 1, 2.6),
    Sketcher.Constraint("DistanceX", 1, 1, -1, 1, 34.0),
    Sketcher.Constraint("DistanceX", 6, 2, -1, 1, 28.0),
    Sketcher.Constraint("DistanceY", 1, 3, -1, 1, 0.1),
])
sketch2.setExpression("Constraints[26]", "Params.sketch2_radius")
sketch2.setExpression("Constraints[27]", "Params.sketch2_height")
sketch2.setExpression("Constraints[28]", "Params.sketch2_width")
pad2 = body.newObject("PartDesign::Pad", "Pad001")
pad2.Profile = sketch2
pad2.setExpression("Length", "Params.pad2_length")
pad2.Reversed = True
doc.recompute()

mirrored = body.newObject("PartDesign::Mirrored", "Mirrored")
mirrored.Originals = [pad2]
mirrored.MirrorPlane = (doc.getObject("YZ_Plane"), [""])
body.Tip = mirrored
doc.recompute()

chamfer = body.newObject("PartDesign::Chamfer", "Chamfer")
chamfer.Base = (mirrored, edges_at(mirrored, [(-12.124, 4, -8.625), (12.124, 4, -8.625), (0, 4, 12.375)]))
chamfer.setExpression("Size", "Params.chamfer_size")

doc.recompute()
